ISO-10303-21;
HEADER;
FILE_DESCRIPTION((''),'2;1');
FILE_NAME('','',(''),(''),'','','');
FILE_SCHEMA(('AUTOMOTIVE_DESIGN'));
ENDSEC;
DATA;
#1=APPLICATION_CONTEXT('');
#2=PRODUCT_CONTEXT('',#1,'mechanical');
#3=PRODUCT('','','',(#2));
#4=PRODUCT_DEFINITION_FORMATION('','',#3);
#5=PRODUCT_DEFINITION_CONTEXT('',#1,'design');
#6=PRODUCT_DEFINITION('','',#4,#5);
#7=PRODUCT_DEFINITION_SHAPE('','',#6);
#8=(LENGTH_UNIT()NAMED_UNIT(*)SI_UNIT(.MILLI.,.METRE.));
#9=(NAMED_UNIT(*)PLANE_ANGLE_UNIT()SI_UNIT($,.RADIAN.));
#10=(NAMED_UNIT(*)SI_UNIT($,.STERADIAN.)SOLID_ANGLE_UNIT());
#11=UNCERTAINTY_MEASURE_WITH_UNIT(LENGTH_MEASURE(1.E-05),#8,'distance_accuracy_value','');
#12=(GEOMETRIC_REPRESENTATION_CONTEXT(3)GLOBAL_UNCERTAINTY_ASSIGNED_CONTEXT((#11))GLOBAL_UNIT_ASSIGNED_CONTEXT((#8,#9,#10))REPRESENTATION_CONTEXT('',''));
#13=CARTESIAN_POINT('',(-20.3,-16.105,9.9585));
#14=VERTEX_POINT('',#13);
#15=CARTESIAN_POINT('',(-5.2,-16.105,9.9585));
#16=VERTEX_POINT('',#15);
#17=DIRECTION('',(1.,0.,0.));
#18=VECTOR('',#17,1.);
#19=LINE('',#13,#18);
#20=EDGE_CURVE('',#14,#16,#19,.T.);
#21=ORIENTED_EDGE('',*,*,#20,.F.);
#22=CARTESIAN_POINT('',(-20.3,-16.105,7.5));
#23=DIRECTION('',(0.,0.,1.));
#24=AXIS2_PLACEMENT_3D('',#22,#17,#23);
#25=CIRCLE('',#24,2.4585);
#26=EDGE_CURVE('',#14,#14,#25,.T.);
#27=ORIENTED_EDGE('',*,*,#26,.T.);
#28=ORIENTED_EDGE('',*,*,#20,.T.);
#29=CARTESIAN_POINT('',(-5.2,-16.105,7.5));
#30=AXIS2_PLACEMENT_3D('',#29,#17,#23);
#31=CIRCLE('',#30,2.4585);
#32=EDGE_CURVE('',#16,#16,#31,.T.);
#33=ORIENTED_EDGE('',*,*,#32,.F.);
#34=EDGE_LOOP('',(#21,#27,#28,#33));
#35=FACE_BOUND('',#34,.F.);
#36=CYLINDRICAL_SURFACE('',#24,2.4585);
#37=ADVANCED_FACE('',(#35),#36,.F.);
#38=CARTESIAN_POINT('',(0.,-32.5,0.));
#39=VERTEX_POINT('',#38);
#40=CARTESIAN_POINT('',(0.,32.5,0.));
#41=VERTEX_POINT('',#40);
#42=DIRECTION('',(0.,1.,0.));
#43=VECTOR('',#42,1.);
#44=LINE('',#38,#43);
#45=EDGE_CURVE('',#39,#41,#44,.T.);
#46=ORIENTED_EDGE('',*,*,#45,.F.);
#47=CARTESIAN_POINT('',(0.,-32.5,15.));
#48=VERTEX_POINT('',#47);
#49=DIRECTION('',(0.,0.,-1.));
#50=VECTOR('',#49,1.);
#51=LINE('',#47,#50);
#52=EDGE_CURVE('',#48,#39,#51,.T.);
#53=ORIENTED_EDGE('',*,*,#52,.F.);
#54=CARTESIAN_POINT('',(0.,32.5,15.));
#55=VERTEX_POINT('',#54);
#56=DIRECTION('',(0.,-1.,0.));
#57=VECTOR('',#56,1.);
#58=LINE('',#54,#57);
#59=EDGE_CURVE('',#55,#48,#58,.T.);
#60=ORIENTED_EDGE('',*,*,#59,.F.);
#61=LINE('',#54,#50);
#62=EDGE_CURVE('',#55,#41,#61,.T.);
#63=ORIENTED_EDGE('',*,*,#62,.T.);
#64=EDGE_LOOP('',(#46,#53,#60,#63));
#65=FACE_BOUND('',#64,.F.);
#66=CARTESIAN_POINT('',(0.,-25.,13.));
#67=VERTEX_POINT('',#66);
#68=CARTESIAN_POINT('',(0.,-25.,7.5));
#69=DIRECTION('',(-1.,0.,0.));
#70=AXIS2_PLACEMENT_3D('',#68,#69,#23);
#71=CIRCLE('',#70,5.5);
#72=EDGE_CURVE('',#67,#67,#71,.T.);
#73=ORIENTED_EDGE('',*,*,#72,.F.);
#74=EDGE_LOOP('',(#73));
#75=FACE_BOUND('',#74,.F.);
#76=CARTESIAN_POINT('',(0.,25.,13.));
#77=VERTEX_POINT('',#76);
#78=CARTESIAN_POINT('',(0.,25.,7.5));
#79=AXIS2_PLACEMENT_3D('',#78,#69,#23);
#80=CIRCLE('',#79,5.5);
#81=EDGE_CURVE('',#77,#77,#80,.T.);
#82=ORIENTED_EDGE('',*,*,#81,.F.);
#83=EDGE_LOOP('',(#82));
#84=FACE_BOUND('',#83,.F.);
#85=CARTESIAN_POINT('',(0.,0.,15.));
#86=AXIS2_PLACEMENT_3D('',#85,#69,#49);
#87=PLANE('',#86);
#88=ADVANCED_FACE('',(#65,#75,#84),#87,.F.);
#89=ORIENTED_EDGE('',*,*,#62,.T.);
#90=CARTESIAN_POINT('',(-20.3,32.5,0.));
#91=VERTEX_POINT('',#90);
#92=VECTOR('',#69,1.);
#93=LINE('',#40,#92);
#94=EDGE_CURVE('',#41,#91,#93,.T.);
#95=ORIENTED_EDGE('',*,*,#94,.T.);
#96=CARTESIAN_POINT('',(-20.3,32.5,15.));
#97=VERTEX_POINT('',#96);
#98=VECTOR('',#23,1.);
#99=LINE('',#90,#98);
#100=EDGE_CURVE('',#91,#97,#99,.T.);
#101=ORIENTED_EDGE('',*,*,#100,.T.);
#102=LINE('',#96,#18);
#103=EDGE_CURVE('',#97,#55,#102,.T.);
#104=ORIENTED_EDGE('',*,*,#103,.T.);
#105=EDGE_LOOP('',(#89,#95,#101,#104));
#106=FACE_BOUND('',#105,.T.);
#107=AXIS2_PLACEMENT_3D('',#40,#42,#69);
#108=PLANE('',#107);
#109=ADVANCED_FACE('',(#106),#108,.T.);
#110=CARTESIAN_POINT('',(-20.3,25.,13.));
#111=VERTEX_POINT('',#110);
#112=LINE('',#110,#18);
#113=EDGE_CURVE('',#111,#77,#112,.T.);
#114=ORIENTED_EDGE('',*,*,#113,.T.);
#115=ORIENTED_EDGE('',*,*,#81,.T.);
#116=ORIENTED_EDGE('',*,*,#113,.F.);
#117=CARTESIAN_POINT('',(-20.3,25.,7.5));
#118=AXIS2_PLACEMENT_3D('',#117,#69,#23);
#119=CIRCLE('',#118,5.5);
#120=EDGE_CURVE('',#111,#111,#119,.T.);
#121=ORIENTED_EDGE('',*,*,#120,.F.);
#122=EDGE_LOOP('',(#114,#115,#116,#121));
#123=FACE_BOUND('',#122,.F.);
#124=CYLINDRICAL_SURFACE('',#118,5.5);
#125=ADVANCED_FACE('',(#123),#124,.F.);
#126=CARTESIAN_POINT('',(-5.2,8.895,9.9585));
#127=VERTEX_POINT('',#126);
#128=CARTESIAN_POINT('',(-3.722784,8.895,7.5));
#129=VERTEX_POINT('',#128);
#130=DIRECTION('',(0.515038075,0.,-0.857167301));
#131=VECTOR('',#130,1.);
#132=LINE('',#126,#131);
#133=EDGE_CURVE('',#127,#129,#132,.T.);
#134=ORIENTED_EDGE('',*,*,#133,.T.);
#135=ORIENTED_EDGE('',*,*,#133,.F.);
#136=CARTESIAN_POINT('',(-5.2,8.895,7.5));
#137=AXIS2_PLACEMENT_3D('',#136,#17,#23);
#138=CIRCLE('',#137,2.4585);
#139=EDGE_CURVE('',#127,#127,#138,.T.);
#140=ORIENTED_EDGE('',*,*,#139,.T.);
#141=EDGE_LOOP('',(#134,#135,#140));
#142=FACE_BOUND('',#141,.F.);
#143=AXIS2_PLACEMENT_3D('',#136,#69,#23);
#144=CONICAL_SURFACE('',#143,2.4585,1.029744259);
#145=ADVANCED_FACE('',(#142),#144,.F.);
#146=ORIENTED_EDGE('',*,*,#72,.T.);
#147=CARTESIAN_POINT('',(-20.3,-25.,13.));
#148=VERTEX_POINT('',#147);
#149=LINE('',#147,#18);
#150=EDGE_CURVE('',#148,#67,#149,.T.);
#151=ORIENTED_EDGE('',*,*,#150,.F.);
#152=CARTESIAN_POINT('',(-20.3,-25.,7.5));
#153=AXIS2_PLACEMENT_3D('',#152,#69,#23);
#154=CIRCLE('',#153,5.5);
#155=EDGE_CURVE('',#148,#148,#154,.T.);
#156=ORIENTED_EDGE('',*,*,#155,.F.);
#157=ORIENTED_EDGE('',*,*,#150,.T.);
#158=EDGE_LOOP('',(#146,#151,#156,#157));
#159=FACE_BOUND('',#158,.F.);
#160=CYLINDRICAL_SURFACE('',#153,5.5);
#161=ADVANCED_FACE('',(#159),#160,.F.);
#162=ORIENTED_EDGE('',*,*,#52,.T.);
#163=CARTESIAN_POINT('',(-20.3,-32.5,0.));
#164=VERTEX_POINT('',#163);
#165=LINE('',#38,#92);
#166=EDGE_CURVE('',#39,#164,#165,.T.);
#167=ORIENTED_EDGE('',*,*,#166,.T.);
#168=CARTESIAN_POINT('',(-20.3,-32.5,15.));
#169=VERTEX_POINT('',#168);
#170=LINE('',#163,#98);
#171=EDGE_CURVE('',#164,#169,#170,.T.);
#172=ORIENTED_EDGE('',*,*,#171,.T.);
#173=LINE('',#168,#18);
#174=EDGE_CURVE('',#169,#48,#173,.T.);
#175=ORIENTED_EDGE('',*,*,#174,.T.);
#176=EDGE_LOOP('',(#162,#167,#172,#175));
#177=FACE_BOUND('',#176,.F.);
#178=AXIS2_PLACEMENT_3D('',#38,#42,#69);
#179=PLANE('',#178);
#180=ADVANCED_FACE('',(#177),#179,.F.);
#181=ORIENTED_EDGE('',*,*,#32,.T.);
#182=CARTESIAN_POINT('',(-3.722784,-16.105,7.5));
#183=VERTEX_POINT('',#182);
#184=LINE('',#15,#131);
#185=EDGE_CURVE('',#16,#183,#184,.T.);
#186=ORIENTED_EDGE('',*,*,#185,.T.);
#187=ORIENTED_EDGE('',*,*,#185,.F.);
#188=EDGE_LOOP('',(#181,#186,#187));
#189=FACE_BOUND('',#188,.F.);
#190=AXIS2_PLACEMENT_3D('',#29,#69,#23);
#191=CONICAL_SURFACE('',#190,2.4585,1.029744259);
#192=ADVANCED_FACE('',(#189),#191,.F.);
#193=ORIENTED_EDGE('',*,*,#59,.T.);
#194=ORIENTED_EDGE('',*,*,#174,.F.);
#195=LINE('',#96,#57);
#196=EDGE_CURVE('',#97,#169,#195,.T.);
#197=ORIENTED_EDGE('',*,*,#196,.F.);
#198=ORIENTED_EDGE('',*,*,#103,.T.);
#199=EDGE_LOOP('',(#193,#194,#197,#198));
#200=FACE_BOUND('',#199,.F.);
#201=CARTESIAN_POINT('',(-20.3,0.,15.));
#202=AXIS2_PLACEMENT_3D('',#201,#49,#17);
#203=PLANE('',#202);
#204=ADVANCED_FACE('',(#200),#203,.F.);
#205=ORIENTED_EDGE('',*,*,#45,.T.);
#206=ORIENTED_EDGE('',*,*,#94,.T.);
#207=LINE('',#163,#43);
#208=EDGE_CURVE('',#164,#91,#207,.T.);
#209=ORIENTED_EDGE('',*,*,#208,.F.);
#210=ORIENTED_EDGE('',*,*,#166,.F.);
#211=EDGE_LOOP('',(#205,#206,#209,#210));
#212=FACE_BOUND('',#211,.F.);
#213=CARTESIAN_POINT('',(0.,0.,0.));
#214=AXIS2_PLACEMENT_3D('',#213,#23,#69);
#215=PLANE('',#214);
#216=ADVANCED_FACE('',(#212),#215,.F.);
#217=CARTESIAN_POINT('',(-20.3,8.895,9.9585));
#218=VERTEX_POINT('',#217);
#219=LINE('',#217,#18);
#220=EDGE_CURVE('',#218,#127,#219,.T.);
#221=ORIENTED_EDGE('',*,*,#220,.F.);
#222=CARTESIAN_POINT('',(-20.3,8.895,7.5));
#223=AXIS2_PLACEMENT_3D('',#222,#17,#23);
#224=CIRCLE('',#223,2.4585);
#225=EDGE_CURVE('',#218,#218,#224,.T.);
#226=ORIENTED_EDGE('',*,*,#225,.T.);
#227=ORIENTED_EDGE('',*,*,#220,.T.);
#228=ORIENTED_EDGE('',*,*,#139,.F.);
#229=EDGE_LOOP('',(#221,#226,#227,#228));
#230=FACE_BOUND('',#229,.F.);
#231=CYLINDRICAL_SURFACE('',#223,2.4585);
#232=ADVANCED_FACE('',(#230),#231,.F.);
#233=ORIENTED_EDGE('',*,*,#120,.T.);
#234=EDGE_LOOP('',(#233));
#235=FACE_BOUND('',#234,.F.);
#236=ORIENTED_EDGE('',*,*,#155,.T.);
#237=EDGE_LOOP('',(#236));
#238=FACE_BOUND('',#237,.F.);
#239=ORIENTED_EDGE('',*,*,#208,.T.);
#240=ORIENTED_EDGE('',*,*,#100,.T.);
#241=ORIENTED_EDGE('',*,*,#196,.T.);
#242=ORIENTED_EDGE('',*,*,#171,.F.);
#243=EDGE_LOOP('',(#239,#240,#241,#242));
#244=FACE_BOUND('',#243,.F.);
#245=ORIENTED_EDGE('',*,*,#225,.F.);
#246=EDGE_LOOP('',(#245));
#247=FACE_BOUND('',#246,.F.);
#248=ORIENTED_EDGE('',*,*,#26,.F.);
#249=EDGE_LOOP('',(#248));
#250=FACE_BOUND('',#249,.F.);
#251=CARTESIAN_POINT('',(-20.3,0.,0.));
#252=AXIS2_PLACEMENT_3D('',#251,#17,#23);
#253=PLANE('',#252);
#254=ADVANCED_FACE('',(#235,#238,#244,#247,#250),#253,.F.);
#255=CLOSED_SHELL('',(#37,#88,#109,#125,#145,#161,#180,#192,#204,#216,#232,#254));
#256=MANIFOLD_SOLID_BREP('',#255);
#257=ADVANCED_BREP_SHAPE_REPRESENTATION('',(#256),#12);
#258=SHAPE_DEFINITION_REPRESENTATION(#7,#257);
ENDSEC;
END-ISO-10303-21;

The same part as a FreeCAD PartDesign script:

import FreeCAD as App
import Part
import Sketcher

V = App.Vector
Q = App.Units.Quantity


def add_polygon(sketch, points):
    """Adds a closed chain of lines whose ends are joined by coincident constraints."""
    first, n = sketch.GeometryCount, len(points)
    for a, b in zip(points, points[1:] + points[:1]):
        sketch.addGeometry(Part.LineSegment(App.Vector(*a, 0), App.Vector(*b, 0)), False)
    for i in range(n):
        sketch.addConstraint(Sketcher.Constraint("Coincident", first + i, 2, first + (i + 1) % n, 1))

doc = App.newDocument("Part")
params = doc.addObject("Spreadsheet::Sheet", "Params")
for row, (alias, value) in enumerate([
    ("sketch1_height", "15 mm"),
    ("sketch1_width", "20.3 mm"),
    ("pad1_length", "65 mm"),
    ("sketch2_diameter", "6.5 mm"),
    ("sketch3_diameter", "11 mm"),
    ("sketch3_diameter2", "6.5 mm"),
    ("pocket2_length", "21.3 mm"),
    ("hole_diameter", "4.917 mm"),
    ("hole_depth", "15.1 mm"),
], start=1):
    params.set(f"A{row}", alias)
    params.set(f"B{row}", "=" + value)
    params.setAlias(f"B{row}", alias)

body = doc.addObject("PartDesign::Body", "Body")

# Sketch on XZ plane
sketch1 = doc.addObject("Sketcher::SketchObject", "Sketch")
body.addObject(sketch1)
sketch1.AttachmentSupport = (doc.XZ_Plane, [""])
sketch1.MapMode = "FlatFace"
add_polygon(sketch1, [(0, 15), (0, 0), (-20, 0), (-20, 15)])  # lines 0-3
sketch1.addConstraint(Sketcher.Constraint("Vertical", 0))
sketch1.addConstraint(Sketcher.Constraint("Horizontal", 1))
sketch1.addConstraint(Sketcher.Constraint("Vertical", 2))
sketch1.addConstraint(Sketcher.Constraint("Horizontal", 3))
sketch1.addConstraint(Sketcher.Constraint("Coincident", 0, 2, -1, 1))
sketch1.addConstraint(Sketcher.Constraint("DistanceY", 0, 2, 0, 1, Q("15 mm")))
sketch1.addConstraint(Sketcher.Constraint("DistanceX", 1, 2, 1, 1, Q("20.3 mm")))
sketch1.setExpression("Constraints[9]", "Params.sketch1_height")
sketch1.setExpression("Constraints[10]", "Params.sketch1_width")
pad1 = doc.addObject("PartDesign::Pad", "Pad")
body.addObject(pad1)
pad1.Profile = sketch1
pad1.setExpression("Length", "Params.pad1_length")
pad1.Midplane = True

# Sketch on YZ plane
sketch2 = doc.addObject("Sketcher::SketchObject", "Sketch001")
body.addObject(sketch2)
sketch2.AttachmentSupport = (doc.YZ_Plane, [""])
sketch2.MapMode = "FlatFace"
sketch2.AttachmentOffset = App.Placement(V(0, 0, -20.3), App.Rotation())
sketch2.addGeometry(Part.Circle(V(-25, 7.5, 0), V(0, 0, 1), 3.2), False)
sketch2.addGeometry(Part.Circle(V(25, 7.5, 0), V(0, 0, 1), 3.2), False)
sketch2.addConstraint(Sketcher.Constraint("Equal", 0, 1))
sketch2.addConstraint(Sketcher.Constraint("Symmetric", 0, 3, 1, 3, -2))
sketch2.addConstraint(Sketcher.Constraint("Diameter", 0, Q("6.5 mm")))
sketch2.addConstraint(Sketcher.Constraint("DistanceX", 0, 3, -1, 1, Q("25 mm")))
sketch2.addConstraint(Sketcher.Constraint("DistanceY", -1, 1, 0, 3, Q("7.5 mm")))
sketch2.setExpression("Constraints[2]", "Params.sketch2_diameter")
pocket1 = doc.addObject("PartDesign::Pocket", "Pocket")
body.addObject(pocket1)
pocket1.Profile = sketch2
pocket1.Type = "ThroughAll"
pocket1.Reversed = True

# Sketch on YZ plane
sketch3 = doc.addObject("Sketcher::SketchObject", "Sketch002")
body.addObject(sketch3)
sketch3.AttachmentSupport = (doc.YZ_Plane, [""])
sketch3.MapMode = "FlatFace"
sketch3.AttachmentOffset = App.Placement(V(0, 0, -20.3), App.Rotation())
sketch3.addGeometry(Part.Circle(V(-25, 7.5, 0), V(0, 0, 1), 5.5), False)
sketch3.addGeometry(Part.Circle(V(-25, 7.5, 0), V(0, 0, 1), 3.2), False)
sketch3.addGeometry(Part.Circle(V(25, 7.5, 0), V(0, 0, 1), 5.5), False)
sketch3.addGeometry(Part.Circle(V(25, 7.5, 0), V(0, 0, 1), 3.2), False)
sketch3.addConstraint(Sketcher.Constraint("Coincident", 1, 3, 0, 3))
sketch3.addConstraint(Sketcher.Constraint("Coincident", 3, 3, 2, 3))
sketch3.addConstraint(Sketcher.Constraint("Equal", 0, 2))
sketch3.addConstraint(Sketcher.Constraint("Equal", 1, 3))
sketch3.addConstraint(Sketcher.Constraint("Symmetric", 0, 3, 2, 3, -2))
sketch3.addConstraint(Sketcher.Constraint("Diameter", 0, Q("11 mm")))
sketch3.addConstraint(Sketcher.Constraint("Diameter", 1, Q("6.5 mm")))
sketch3.addConstraint(Sketcher.Constraint("DistanceX", 0, 3, -1, 1, Q("25 mm")))
sketch3.addConstraint(Sketcher.Constraint("DistanceY", -1, 1, 0, 3, Q("7.5 mm")))
sketch3.setExpression("Constraints[5]", "Params.sketch3_diameter")
sketch3.setExpression("Constraints[6]", "Params.sketch3_diameter2")
pocket2 = doc.addObject("PartDesign::Pocket", "Pocket001")
body.addObject(pocket2)
pocket2.Profile = sketch3
pocket2.setExpression("Length", "Params.pocket2_length")
pocket2.Reversed = True

# Sketch on YZ plane
sketch4 = doc.addObject("Sketcher::SketchObject", "Sketch003")
body.addObject(sketch4)
sketch4.AttachmentSupport = (doc.YZ_Plane, [""])
sketch4.MapMode = "FlatFace"
sketch4.AttachmentOffset = App.Placement(V(0, 0, -20.3), App.Rotation())
sketch4.addGeometry(Part.Circle(V(-16.1, 7.5, 0), V(0, 0, 1), 2.5), False)
sketch4.addGeometry(Part.Circle(V(8.9, 7.5, 0), V(0, 0, 1), 2.5), False)
sketch4.addConstraint(Sketcher.Constraint("Equal", 0, 1))
sketch4.addConstraint(Sketcher.Constraint("Horizontal", 0, 3, 1, 3))
sketch4.addConstraint(Sketcher.Constraint("Diameter", 0, Q("4.917 mm")))
sketch4.addConstraint(Sketcher.Constraint("DistanceX", 0, 3, 1, 3, Q("25 mm")))
sketch4.addConstraint(Sketcher.Constraint("DistanceY", -1, 1, 0, 3, Q("7.5 mm")))
sketch4.addConstraint(Sketcher.Constraint("DistanceX", 0, 3, -1, 1, Q("16.105 mm")))
doc.recompute()
hole = doc.addObject("PartDesign::Hole", "Hole")
body.addObject(hole)
hole.Profile = sketch4
hole.ThreadType = "None"
hole.setExpression("Diameter", "Params.hole_diameter")
hole.DepthType = "Dimension"
hole.setExpression("Depth", "Params.hole_depth")
hole.DrillPoint = "Angled"
hole.DrillPointAngle = 118
hole.Reversed = True

doc.recompute()
